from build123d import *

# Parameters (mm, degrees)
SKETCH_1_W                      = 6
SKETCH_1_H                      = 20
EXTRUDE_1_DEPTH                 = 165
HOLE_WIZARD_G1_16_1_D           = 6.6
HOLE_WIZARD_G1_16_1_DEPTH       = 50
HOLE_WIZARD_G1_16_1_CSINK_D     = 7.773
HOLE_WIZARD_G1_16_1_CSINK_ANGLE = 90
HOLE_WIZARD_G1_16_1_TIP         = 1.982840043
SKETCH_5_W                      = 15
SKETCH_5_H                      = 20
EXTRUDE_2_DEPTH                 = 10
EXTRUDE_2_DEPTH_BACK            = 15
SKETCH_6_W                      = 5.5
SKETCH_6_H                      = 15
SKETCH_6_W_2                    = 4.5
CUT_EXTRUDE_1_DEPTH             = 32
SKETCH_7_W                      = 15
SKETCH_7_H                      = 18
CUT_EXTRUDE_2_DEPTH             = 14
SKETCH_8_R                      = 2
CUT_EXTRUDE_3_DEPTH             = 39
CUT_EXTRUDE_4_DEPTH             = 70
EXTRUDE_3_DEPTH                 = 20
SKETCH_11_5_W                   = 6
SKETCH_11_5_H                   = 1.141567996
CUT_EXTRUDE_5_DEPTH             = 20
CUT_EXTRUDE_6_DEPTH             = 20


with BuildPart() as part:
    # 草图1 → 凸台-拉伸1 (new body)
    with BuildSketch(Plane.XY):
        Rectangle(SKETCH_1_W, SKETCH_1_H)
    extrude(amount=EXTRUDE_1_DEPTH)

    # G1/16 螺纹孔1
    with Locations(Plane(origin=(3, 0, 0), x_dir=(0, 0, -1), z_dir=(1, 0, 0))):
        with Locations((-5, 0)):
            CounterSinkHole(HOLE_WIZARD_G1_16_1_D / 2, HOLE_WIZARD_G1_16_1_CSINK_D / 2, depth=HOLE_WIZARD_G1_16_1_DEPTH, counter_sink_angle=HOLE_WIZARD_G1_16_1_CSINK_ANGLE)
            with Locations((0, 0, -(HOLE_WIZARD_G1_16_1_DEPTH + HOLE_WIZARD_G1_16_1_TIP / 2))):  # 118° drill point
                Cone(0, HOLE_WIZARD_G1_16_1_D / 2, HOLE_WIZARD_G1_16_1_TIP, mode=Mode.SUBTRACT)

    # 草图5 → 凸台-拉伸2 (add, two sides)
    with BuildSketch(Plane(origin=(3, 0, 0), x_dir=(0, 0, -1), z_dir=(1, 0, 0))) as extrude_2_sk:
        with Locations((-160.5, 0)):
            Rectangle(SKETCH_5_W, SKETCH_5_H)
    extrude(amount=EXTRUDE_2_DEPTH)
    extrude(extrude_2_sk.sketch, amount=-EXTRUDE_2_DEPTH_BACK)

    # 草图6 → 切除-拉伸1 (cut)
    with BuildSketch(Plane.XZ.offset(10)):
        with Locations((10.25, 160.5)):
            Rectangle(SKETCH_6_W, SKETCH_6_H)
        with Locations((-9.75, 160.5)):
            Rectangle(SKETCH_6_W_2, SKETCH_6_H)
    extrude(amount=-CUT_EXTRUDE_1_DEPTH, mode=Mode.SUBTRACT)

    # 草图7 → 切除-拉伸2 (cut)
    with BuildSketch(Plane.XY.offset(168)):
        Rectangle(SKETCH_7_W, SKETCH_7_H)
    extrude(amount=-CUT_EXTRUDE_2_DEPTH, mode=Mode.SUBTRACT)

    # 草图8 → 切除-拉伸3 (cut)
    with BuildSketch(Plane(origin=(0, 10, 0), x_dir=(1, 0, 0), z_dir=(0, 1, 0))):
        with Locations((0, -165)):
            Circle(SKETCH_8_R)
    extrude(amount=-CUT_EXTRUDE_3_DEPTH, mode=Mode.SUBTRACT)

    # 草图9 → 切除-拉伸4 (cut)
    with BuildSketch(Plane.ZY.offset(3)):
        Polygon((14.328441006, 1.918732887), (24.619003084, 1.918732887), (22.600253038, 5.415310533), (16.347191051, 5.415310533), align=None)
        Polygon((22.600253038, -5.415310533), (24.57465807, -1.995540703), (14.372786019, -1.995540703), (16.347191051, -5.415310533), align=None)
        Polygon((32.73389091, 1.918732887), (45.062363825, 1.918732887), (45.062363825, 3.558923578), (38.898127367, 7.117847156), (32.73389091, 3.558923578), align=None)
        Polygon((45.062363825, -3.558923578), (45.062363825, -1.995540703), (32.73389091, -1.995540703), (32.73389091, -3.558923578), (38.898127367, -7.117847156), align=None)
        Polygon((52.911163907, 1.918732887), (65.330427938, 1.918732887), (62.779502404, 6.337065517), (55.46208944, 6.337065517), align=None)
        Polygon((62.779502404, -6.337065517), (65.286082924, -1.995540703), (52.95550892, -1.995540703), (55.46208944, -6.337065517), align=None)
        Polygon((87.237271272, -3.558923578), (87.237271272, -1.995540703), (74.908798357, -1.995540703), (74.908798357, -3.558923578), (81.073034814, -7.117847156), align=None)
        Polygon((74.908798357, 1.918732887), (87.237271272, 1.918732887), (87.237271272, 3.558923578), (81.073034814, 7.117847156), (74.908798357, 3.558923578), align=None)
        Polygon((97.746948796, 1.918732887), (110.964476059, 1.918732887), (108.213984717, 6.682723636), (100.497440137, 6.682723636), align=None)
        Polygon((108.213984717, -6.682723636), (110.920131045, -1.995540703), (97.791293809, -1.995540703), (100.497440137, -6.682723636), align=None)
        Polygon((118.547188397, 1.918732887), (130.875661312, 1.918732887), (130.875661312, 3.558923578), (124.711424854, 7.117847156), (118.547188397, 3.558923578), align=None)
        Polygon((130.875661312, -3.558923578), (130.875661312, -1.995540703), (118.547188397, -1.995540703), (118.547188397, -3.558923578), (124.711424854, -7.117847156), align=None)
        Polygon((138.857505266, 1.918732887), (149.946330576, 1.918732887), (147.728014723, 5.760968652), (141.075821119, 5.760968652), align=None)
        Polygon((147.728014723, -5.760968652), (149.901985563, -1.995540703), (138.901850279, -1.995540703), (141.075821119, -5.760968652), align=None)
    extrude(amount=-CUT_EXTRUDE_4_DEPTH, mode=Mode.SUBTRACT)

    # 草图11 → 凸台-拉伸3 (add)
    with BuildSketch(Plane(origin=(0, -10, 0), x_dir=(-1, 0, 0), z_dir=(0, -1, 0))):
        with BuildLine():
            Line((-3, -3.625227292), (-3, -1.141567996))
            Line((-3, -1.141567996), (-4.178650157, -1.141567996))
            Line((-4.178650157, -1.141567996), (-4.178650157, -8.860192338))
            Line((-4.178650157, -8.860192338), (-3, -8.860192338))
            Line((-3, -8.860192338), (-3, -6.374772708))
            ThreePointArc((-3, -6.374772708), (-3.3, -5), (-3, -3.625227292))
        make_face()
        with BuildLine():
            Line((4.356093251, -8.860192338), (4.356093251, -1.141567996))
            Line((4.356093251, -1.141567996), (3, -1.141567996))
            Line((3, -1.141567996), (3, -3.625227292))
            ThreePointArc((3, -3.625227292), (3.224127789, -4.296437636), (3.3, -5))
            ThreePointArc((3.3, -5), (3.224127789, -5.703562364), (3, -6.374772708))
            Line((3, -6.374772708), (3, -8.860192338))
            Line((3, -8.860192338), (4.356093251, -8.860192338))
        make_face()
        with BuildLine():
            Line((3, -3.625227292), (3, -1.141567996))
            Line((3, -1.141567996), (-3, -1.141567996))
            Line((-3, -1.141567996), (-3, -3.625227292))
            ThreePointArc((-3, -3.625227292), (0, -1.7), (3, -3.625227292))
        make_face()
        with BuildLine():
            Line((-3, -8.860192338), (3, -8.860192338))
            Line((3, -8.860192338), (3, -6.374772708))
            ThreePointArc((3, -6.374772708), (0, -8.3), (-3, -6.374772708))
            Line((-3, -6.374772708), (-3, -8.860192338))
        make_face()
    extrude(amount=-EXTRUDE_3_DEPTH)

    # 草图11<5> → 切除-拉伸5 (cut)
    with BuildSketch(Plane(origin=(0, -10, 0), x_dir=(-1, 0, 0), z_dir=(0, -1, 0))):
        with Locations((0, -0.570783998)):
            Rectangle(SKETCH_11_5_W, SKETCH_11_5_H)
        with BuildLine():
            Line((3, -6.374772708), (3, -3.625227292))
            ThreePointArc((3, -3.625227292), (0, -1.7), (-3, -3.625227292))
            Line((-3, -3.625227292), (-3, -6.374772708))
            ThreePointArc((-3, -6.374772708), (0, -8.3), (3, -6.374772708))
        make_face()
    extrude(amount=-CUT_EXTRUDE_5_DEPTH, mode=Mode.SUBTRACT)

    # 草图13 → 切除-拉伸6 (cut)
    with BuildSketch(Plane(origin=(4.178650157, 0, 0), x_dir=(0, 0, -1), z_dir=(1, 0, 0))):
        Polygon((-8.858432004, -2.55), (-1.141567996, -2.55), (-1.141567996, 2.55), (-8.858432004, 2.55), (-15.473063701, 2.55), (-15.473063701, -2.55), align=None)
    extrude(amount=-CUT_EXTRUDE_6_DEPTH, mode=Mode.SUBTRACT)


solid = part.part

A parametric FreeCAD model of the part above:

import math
import FreeCAD as App
import Part
import Sketcher
from FreeCAD import Vector
Q = App.Units.Quantity

doc = App.newDocument("Part")
body = doc.addObject("PartDesign::Body", "Body")

# Sketch on XY plane
sketch1 = body.newObject("Sketcher::SketchObject", "Sketch")
sketch1.AttachmentSupport = (doc.getObject("XY_Plane"), [""])
sketch1.MapMode = "FlatFace"
sketch1.addGeometry(Part.LineSegment(Vector(-3, 10, 0), Vector(-3, -10, 0)), False)
sketch1.addGeometry(Part.LineSegment(Vector(-3, -10, 0), Vector(3, -10, 0)), False)
sketch1.addGeometry(Part.LineSegment(Vector(3, -10, 0), Vector(3, 10, 0)), False)
sketch1.addGeometry(Part.LineSegment(Vector(3, 10, 0), Vector(-3, 10, 0)), False)
sketch1.addConstraint(Sketcher.Constraint("Coincident", 0, 2, 1, 1))
sketch1.addConstraint(Sketcher.Constraint("Coincident", 1, 2, 2, 1))
sketch1.addConstraint(Sketcher.Constraint("Coincident", 2, 2, 3, 1))
sketch1.addConstraint(Sketcher.Constraint("Coincident", 3, 2, 0, 1))
sketch1.addConstraint(Sketcher.Constraint("Vertical", 0))
sketch1.addConstraint(Sketcher.Constraint("Horizontal", 1))
sketch1.addConstraint(Sketcher.Constraint("Vertical", 2))
sketch1.addConstraint(Sketcher.Constraint("Horizontal", 3))
sketch1.addConstraint(Sketcher.Constraint("Symmetric", 0, 2, 2, 2, -1, 1))
sketch1.addConstraint(Sketcher.Constraint("DistanceX", 1, 1, 1, 2, 6.0))
sketch1.addConstraint(Sketcher.Constraint("DistanceY", 0, 2, 0, 1, 20.0))
pad1 = body.newObject("PartDesign::Pad", "Pad")
pad1.Profile = sketch1
pad1.Length = 165

# Sketch on YZ plane
sketch2 = body.newObject("Sketcher::SketchObject", "Sketch001")
sketch2.AttachmentSupport = (doc.getObject("YZ_Plane"), [""])
sketch2.MapMode = "FlatFace"
sketch2.AttachmentOffset = App.Placement(Vector(0, 0, 3), App.Rotation())
sketch2.addGeometry(Part.Circle(Vector(0, 5, 0), Vector(0, 0, 1), 3.3), False)
sketch2.addConstraint(Sketcher.Constraint("PointOnObject", 0, 3, -2))
sketch2.addConstraint(Sketcher.Constraint("Diameter", 0, 6.6))
sketch2.addConstraint(Sketcher.Constraint("DistanceY", -1, 1, 0, 3, 5.0))
doc.recompute()
hole = body.newObject("PartDesign::Hole", "Hole")
hole.Profile = sketch2
hole.ThreadType = "None"
hole.Diameter = 6.6
hole.DepthType = "Dimension"
hole.Depth = 50
hole.DrillPoint = "Angled"
hole.DrillPointAngle = 118
hole.HoleCutType = "Countersink"
hole.HoleCutDiameter = 7.773
hole.HoleCutCountersinkAngle = 90

# Sketch on YZ plane
sketch3 = body.newObject("Sketcher::SketchObject", "Sketch002")
sketch3.AttachmentSupport = (doc.getObject("YZ_Plane"), [""])
sketch3.MapMode = "FlatFace"
sketch3.AttachmentOffset = App.Placement(Vector(0, 0, 3), App.Rotation())
sketch3.addGeometry(Part.LineSegment(Vector(10, 168, 0), Vector(-10, 168, 0)), False)
sketch3.addGeometry(Part.LineSegment(Vector(-10, 168, 0), Vector(-10, 153, 0)), False)
sketch3.addGeometry(Part.LineSegment(Vector(-10, 153, 0), Vector(10, 153, 0)), False)
sketch3.addGeometry(Part.LineSegment(Vector(10, 153, 0), Vector(10, 168, 0)), False)
sketch3.addConstraint(Sketcher.Constraint("Coincident", 0, 2, 1, 1))
sketch3.addConstraint(Sketcher.Constraint("Coincident", 1, 2, 2, 1))
sketch3.addConstraint(Sketcher.Constraint("Coincident", 2, 2, 3, 1))
sketch3.addConstraint(Sketcher.Constraint("Coincident", 3, 2, 0, 1))
sketch3.addConstraint(Sketcher.Constraint("Horizontal", 0))
sketch3.addConstraint(Sketcher.Constraint("Vertical", 1))
sketch3.addConstraint(Sketcher.Constraint("Horizontal", 2))
sketch3.addConstraint(Sketcher.Constraint("Vertical", 3))
sketch3.addConstraint(Sketcher.Constraint("DistanceX", 0, 2, 0, 1, 20.0))
sketch3.addConstraint(Sketcher.Constraint("DistanceY", 1, 2, 1, 1, 15.0))
sketch3.addConstraint(Sketcher.Constraint("DistanceX", 0, 2, -1, 1, 10.0))
sketch3.addConstraint(Sketcher.Constraint("DistanceY", -1, 1, 0, 2, 168.0))
pad2 = body.newObject("PartDesign::Pad", "Pad001")
pad2.Profile = sketch3
pad2.Type = "TwoLengths"
pad2.Length = 10
pad2.Length2 = 15

# Sketch on XZ plane
sketch4 = body.newObject("Sketcher::SketchObject", "Sketch003")
sketch4.AttachmentSupport = (doc.getObject("XZ_Plane"), [""])
sketch4.MapMode = "FlatFace"
sketch4.AttachmentOffset = App.Placement(Vector(0, 0, 10), App.Rotation())
sketch4.addGeometry(Part.LineSegment(Vector(7.5, 168, 0), Vector(7.5, 153, 0)), False)
sketch4.addGeometry(Part.LineSegment(Vector(7.5, 153, 0), Vector(13, 153, 0)), False)
sketch4.addGeometry(Part.LineSegment(Vector(13, 153, 0), Vector(13, 168, 0)), False)
sketch4.addGeometry(Part.LineSegment(Vector(13, 168, 0), Vector(7.5, 168, 0)), False)
sketch4.addGeometry(Part.LineSegment(Vector(-12, 168, 0), Vector(-12, 153, 0)), False)
sketch4.addGeometry(Part.LineSegment(Vector(-12, 153, 0), Vector(-7.5, 153, 0)), False)
sketch4.addGeometry(Part.LineSegment(Vector(-7.5, 153, 0), Vector(-7.5, 168, 0)), False)
sketch4.addGeometry(Part.LineSegment(Vector(-7.5, 168, 0), Vector(-12, 168, 0)), False)
sketch4.addConstraint(Sketcher.Constraint("Coincident", 0, 2, 1, 1))
sketch4.addConstraint(Sketcher.Constraint("Coincident", 1, 2, 2, 1))
sketch4.addConstraint(Sketcher.Constraint("Coincident", 2, 2, 3, 1))
sketch4.addConstraint(Sketcher.Constraint("Coincident", 3, 2, 0, 1))
sketch4.addConstraint(Sketcher.Constraint("Coincident", 4, 2, 5, 1))
sketch4.addConstraint(Sketcher.Constraint("Coincident", 5, 2, 6, 1))
sketch4.addConstraint(Sketcher.Constraint("Coincident", 6, 2, 7, 1))
sketch4.addConstraint(Sketcher.Constraint("Coincident", 7, 2, 4, 1))
sketch4.addConstraint(Sketcher.Constraint("Vertical", 0))
sketch4.addConstraint(Sketcher.Constraint("Horizontal", 1))
sketch4.addConstraint(Sketcher.Constraint("Vertical", 2))
sketch4.addConstraint(Sketcher.Constraint("Horizontal", 3))
sketch4.addConstraint(Sketcher.Constraint("Vertical", 4))
sketch4.addConstraint(Sketcher.Constraint("Horizontal", 5))
sketch4.addConstraint(Sketcher.Constraint("Vertical", 6))
sketch4.addConstraint(Sketcher.Constraint("Horizontal", 7))
sketch4.addConstraint(Sketcher.Constraint("Symmetric", 0, 2, 5, 2, -2))
sketch4.addConstraint(Sketcher.Constraint("Horizontal", 3, 2, 6, 2))
sketch4.addConstraint(Sketcher.Constraint("DistanceY", 0, 2, 0, 1, 15.0))
sketch4.addConstraint(Sketcher.Constraint("DistanceX", 1, 1, 1, 2, 5.5))
sketch4.addConstraint(Sketcher.Constraint("DistanceX", 5, 1, 5, 2, 4.5))
sketch4.addConstraint(Sketcher.Constraint("DistanceY", -1, 1, 0, 2, 153.0))
sketch4.addConstraint(Sketcher.Constraint("DistanceX", -1, 1, 1, 2, 13.0))
pocket1 = body.newObject("PartDesign::Pocket", "Pocket")
pocket1.Profile = sketch4
pocket1.Length = 32

# Sketch on XY plane
sketch5 = body.newObject("Sketcher::SketchObject", "Sketch004")
sketch5.AttachmentSupport = (doc.getObject("XY_Plane"), [""])
sketch5.MapMode = "FlatFace"
sketch5.AttachmentOffset = App.Placement(Vector(0, 0, 168), App.Rotation())
sketch5.addGeometry(Part.LineSegment(Vector(-8, 9, 0), Vector(-8, -9, 0)), False)
sketch5.addGeometry(Part.LineSegment(Vector(-8, -9, 0), Vector(8, -9, 0)), False)
sketch5.addGeometry(Part.LineSegment(Vector(8, -9, 0), Vector(8, 9, 0)), False)
sketch5.addGeometry(Part.LineSegment(Vector(8, 9, 0), Vector(-8, 9, 0)), False)
sketch5.addConstraint(Sketcher.Constraint("Coincident", 0, 2, 1, 1))
sketch5.addConstraint(Sketcher.Constraint("Coincident", 1, 2, 2, 1))
sketch5.addConstraint(Sketcher.Constraint("Coincident", 2, 2, 3, 1))
sketch5.addConstraint(Sketcher.Constraint("Coincident", 3, 2, 0, 1))
sketch5.addConstraint(Sketcher.Constraint("Vertical", 0))
sketch5.addConstraint(Sketcher.Constraint("Horizontal", 1))
sketch5.addConstraint(Sketcher.Constraint("Vertical", 2))
sketch5.addConstraint(Sketcher.Constraint("Horizontal", 3))
sketch5.addConstraint(Sketcher.Constraint("Symmetric", 0, 2, 2, 2, -1, 1))
sketch5.addConstraint(Sketcher.Constraint("DistanceX", 1, 1, 1, 2, 15.0))
sketch5.addConstraint(Sketcher.Constraint("DistanceY", 0, 2, 0, 1, 18.0))
pocket2 = body.newObject("PartDesign::Pocket", "Pocket001")
pocket2.Profile = sketch5
pocket2.Length = 14

# Sketch on XZ plane
sketch6 = body.newObject("Sketcher::SketchObject", "Sketch005")
sketch6.AttachmentSupport = (doc.getObject("XZ_Plane"), [""])
sketch6.MapMode = "FlatFace"
sketch6.AttachmentOffset = App.Placement(Vector(0, 0, -10), App.Rotation())
sketch6.addGeometry(Part.Circle(Vector(0, 165, 0), Vector(0, 0, 1), 2), False)
sketch6.addConstraint(Sketcher.Constraint("PointOnObject", 0, 3, -2))
sketch6.addConstraint(Sketcher.Constraint("Diameter", 0, 4.0))
sketch6.addConstraint(Sketcher.Constraint("DistanceY", -1, 1, 0, 3, 165.0))
pocket3 = body.newObject("PartDesign::Pocket", "Pocket002")
pocket3.Profile = sketch6
pocket3.Length = 39
pocket3.Reversed = True

# Sketch on YZ plane
sketch7 = body.newObject("Sketcher::SketchObject", "Sketch006")
sketch7.AttachmentSupport = (doc.getObject("YZ_Plane"), [""])
sketch7.MapMode = "FlatFace"
sketch7.AttachmentOffset = App.Placement(Vector(0, 0, -3), App.Rotation())
sketch7.addGeometry(Part.LineSegment(Vector(1.9, 14.3, 0), Vector(1.9, 24.6, 0)), False)
sketch7.addGeometry(Part.LineSegment(Vector(1.9, 24.6, 0), Vector(5.4, 22.6, 0)), False)
sketch7.addGeometry(Part.LineSegment(Vector(5.4, 22.6, 0), Vector(5.4, 16.3, 0)), False)
sketch7.addGeometry(Part.LineSegment(Vector(5.4, 16.3, 0), Vector(1.9, 14.3, 0)), False)
sketch7.addGeometry(Part.LineSegment(Vector(-5.4, 22.6, 0), Vector(-2, 24.6, 0)), False)
sketch7.addGeometry(Part.LineSegment(Vector(-2, 24.6, 0), Vector(-2, 14.4, 0)), False)
sketch7.addGeometry(Part.LineSegment(Vector(-2, 14.4, 0), Vector(-5.4, 16.3, 0)), False)
sketch7.addGeometry(Part.LineSegment(Vector(-5.4, 16.3, 0), Vector(-5.4, 22.6, 0)), False)
sketch7.addGeometry(Part.LineSegment(Vector(1.9, 32.7, 0), Vector(1.9, 45.1, 0)), False)
sketch7.addGeometry(Part.LineSegment(Vector(1.9, 45.1, 0), Vector(3.6, 45.1, 0)), False)
sketch7.addGeometry(Part.LineSegment(Vector(3.6, 45.1, 0), Vector(7.1, 38.9, 0)), False)
sketch7.addGeometry(Part.LineSegment(Vector(7.1, 38.9, 0), Vector(3.6, 32.7, 0)), False)
sketch7.addGeometry(Part.LineSegment(Vector(3.6, 32.7, 0), Vector(1.9, 32.7, 0)), False)
sketch7.addGeometry(Part.LineSegment(Vector(-3.6, 45.1, 0), Vector(-2, 45.1, 0)), False)
sketch7.addGeometry(Part.LineSegment(Vector(-2, 45.1, 0), Vector(-2, 32.7, 0)), False)
sketch7.addGeometry(Part.LineSegment(Vector(-2, 32.7, 0), Vector(-3.6, 32.7, 0)), False)
sketch7.addGeometry(Part.LineSegment(Vector(-3.6, 32.7, 0), Vector(-7.1, 38.9, 0)), False)
sketch7.addGeometry(Part.LineSegment(Vector(-7.1, 38.9, 0), Vector(-3.6, 45.1, 0)), False)
sketch7.addGeometry(Part.LineSegment(Vector(1.9, 52.9, 0), Vector(1.9, 65.3, 0)), False)
sketch7.addGeometry(Part.LineSegment(Vector(1.9, 65.3, 0), Vector(6.3, 62.8, 0)), False)
sketch7.addGeometry(Part.LineSegment(Vector(6.3, 62.8, 0), Vector(6.3, 55.5, 0)), False)
sketch7.addGeometry(Part.LineSegment(Vector(6.3, 55.5, 0), Vector(1.9, 52.9, 0)), False)
sketch7.addGeometry(Part.LineSegment(Vector(-6.3, 62.8, 0), Vector(-2, 65.3, 0)), False)
sketch7.addGeometry(Part.LineSegment(Vector(-2, 65.3, 0), Vector(-2, 53, 0)), False)
sketch7.addGeometry(Part.LineSegment(Vector(-2, 53, 0), Vector(-6.3, 55.5, 0)), False)
sketch7.addGeometry(Part.LineSegment(Vector(-6.3, 55.5, 0), Vector(-6.3, 62.8, 0)), False)
sketch7.addGeometry(Part.LineSegment(Vector(-3.6, 87.2, 0), Vector(-2, 87.2, 0)), False)
sketch7.addGeometry(Part.LineSegment(Vector(-2, 87.2, 0), Vector(-2, 74.9, 0)), False)
sketch7.addGeometry(Part.LineSegment(Vector(-2, 74.9, 0), Vector(-3.6, 74.9, 0)), False)
sketch7.addGeometry(Part.LineSegment(Vector(-3.6, 74.9, 0), Vector(-7.1, 81.1, 0)), False)
sketch7.addGeometry(Part.LineSegment(Vector(-7.1, 81.1, 0), Vector(-3.6, 87.2, 0)), False)
sketch7.addGeometry(Part.LineSegment(Vector(1.9, 74.9, 0), Vector(1.9, 87.2, 0)), False)
sketch7.addGeometry(Part.LineSegment(Vector(1.9, 87.2, 0), Vector(3.6, 87.2, 0)), False)
sketch7.addGeometry(Part.LineSegment(Vector(3.6, 87.2, 0), Vector(7.1, 81.1, 0)), False)
sketch7.addGeometry(Part.LineSegment(Vector(7.1, 81.1, 0), Vector(3.6, 74.9, 0)), False)
sketch7.addGeometry(Part.LineSegment(Vector(3.6, 74.9, 0), Vector(1.9, 74.9, 0)), False)
sketch7.addGeometry(Part.LineSegment(Vector(1.9, 97.7, 0), Vector(1.9, 111, 0)), False)
sketch7.addGeometry(Part.LineSegment(Vector(1.9, 111, 0), Vector(6.7, 108.2, 0)), False)
sketch7.addGeometry(Part.LineSegment(Vector(6.7, 108.2, 0), Vector(6.7, 100.5, 0)), False)
sketch7.addGeometry(Part.LineSegment(Vector(6.7, 100.5, 0), Vector(1.9, 97.7, 0)), False)
sketch7.addGeometry(Part.LineSegment(Vector(-6.7, 108.2, 0), Vector(-2, 110.9, 0)), False)
sketch7.addGeometry(Part.LineSegment(Vector(-2, 110.9, 0), Vector(-2, 97.8, 0)), False)
sketch7.addGeometry(Part.LineSegment(Vector(-2, 97.8, 0), Vector(-6.7, 100.5, 0)), False)
sketch7.addGeometry(Part.LineSegment(Vector(-6.7, 100.5, 0), Vector(-6.7, 108.2, 0)), False)
sketch7.addGeometry(Part.LineSegment(Vector(1.9, 118.5, 0), Vector(1.9, 130.9, 0)), False)
sketch7.addGeometry(Part.LineSegment(Vector(1.9, 130.9, 0), Vector(3.6, 130.9, 0)), False)
sketch7.addGeometry(Part.LineSegment(Vector(3.6, 130.9, 0), Vector(7.1, 124.7, 0)), False)
sketch7.addGeometry(Part.LineSegment(Vector(7.1, 124.7, 0), Vector(3.6, 118.5, 0)), False)
sketch7.addGeometry(Part.LineSegment(Vector(3.6, 118.5, 0), Vector(1.9, 118.5, 0)), False)
sketch7.addGeometry(Part.LineSegment(Vector(-3.6, 130.9, 0), Vector(-2, 130.9, 0)), False)
sketch7.addGeometry(Part.LineSegment(Vector(-2, 130.9, 0), Vector(-2, 118.5, 0)), False)
sketch7.addGeometry(Part.LineSegment(Vector(-2, 118.5, 0), Vector(-3.6, 118.5, 0)), False)
sketch7.addGeometry(Part.LineSegment(Vector(-3.6, 118.5, 0), Vector(-7.1, 124.7, 0)), False)
sketch7.addGeometry(Part.LineSegment(Vector(-7.1, 124.7, 0), Vector(-3.6, 130.9, 0)), False)
sketch7.addGeometry(Part.LineSegment(Vector(1.9, 138.9, 0), Vector(1.9, 149.9, 0)), False)
sketch7.addGeometry(Part.LineSegment(Vector(1.9, 149.9, 0), Vector(5.8, 147.7, 0)), False)
sketch7.addGeometry(Part.LineSegment(Vector(5.8, 147.7, 0), Vector(5.8, 141.1, 0)), False)
sketch7.addGeometry(Part.LineSegment(Vector(5.8, 141.1, 0), Vector(1.9, 138.9, 0)), False)
sketch7.addGeometry(Part.LineSegment(Vector(-5.8, 147.7, 0), Vector(-2, 149.9, 0)), False)
sketch7.addGeometry(Part.LineSegment(Vector(-2, 149.9, 0), Vector(-2, 138.9, 0)), False)
sketch7.addGeometry(Part.LineSegment(Vector(-2, 138.9, 0), Vector(-5.8, 141.1, 0)), False)
sketch7.addGeometry(Part.LineSegment(Vector(-5.8, 141.1, 0), Vector(-5.8, 147.7, 0)), False)
sketch7.addConstraint(Sketcher.Constraint("Coincident", 0, 2, 1, 1))
sketch7.addConstraint(Sketcher.Constraint("Coincident", 1, 2, 2, 1))
sketch7.addConstraint(Sketcher.Constraint("Coincident", 2, 2, 3, 1))
sketch7.addConstraint(Sketcher.Constraint("Coincident", 3, 2, 0, 1))
sketch7.addConstraint(Sketcher.Constraint("Coincident", 4, 2, 5, 1))
sketch7.addConstraint(Sketcher.Constraint("Coincident", 5, 2, 6, 1))
sketch7.addConstraint(Sketcher.Constraint("Coincident", 6, 2, 7, 1))
sketch7.addConstraint(Sketcher.Constraint("Coincident", 7, 2, 4, 1))
sketch7.addConstraint(Sketcher.Constraint("Coincident", 8, 2, 9, 1))
sketch7.addConstraint(Sketcher.Constraint("Coincident", 9, 2, 10, 1))
sketch7.addConstraint(Sketcher.Constraint("Coincident", 10, 2, 11, 1))
sketch7.addConstraint(Sketcher.Constraint("Coincident", 11, 2, 12, 1))
sketch7.addConstraint(Sketcher.Constraint("Coincident", 12, 2, 8, 1))
sketch7.addConstraint(Sketcher.Constraint("Coincident", 13, 2, 14, 1))
sketch7.addConstraint(Sketcher.Constraint("Coincident", 14, 2, 15, 1))
sketch7.addConstraint(Sketcher.Constraint("Coincident", 15, 2, 16, 1))
sketch7.addConstraint(Sketcher.Constraint("Coincident", 16, 2, 17, 1))
sketch7.addConstraint(Sketcher.Constraint("Coincident", 17, 2, 13, 1))
sketch7.addConstraint(Sketcher.Constraint("Coincident", 18, 2, 19, 1))
sketch7.addConstraint(Sketcher.Constraint("Coincident", 19, 2, 20, 1))
sketch7.addConstraint(Sketcher.Constraint("Coincident", 20, 2, 21, 1))
sketch7.addConstraint(Sketcher.Constraint("Coincident", 21, 2, 18, 1))
sketch7.addConstraint(Sketcher.Constraint("Coincident", 22, 2, 23, 1))
sketch7.addConstraint(Sketcher.Constraint("Coincident", 23, 2, 24, 1))
sketch7.addConstraint(Sketcher.Constraint("Coincident", 24, 2, 25, 1))
sketch7.addConstraint(Sketcher.Constraint("Coincident", 25, 2, 22, 1))
sketch7.addConstraint(Sketcher.Constraint("Coincident", 26, 2, 27, 1))
sketch7.addConstraint(Sketcher.Constraint("Coincident", 27, 2, 28, 1))
sketch7.addConstraint(Sketcher.Constraint("Coincident", 28, 2, 29, 1))
sketch7.addConstraint(Sketcher.Constraint("Coincident", 29, 2, 30, 1))
sketch7.addConstraint(Sketcher.Constraint("Coincident", 30, 2, 26, 1))
sketch7.addConstraint(Sketcher.Constraint("Coincident", 31, 2, 32, 1))
sketch7.addConstraint(Sketcher.Constraint("Coincident", 32, 2, 33, 1))
sketch7.addConstraint(Sketcher.Constraint("Coincident", 33, 2, 34, 1))
sketch7.addConstraint(Sketcher.Constraint("Coincident", 34, 2, 35, 1))
sketch7.addConstraint(Sketcher.Constraint("Coincident", 35, 2, 31, 1))
sketch7.addConstraint(Sketcher.Constraint("Coincident", 36, 2, 37, 1))
sketch7.addConstraint(Sketcher.Constraint("Coincident", 37, 2, 38, 1))
sketch7.addConstraint(Sketcher.Constraint("Coincident", 38, 2, 39, 1))
sketch7.addConstraint(Sketcher.Constraint("Coincident", 39, 2, 36, 1))
sketch7.addConstraint(Sketcher.Constraint("Coincident", 40, 2, 41, 1))
sketch7.addConstraint(Sketcher.Constraint("Coincident", 41, 2, 42, 1))
sketch7.addConstraint(Sketcher.Constraint("Coincident", 42, 2, 43, 1))
sketch7.addConstraint(Sketcher.Constraint("Coincident", 43, 2, 40, 1))
sketch7.addConstraint(Sketcher.Constraint("Coincident", 44, 2, 45, 1))
sketch7.addConstraint(Sketcher.Constraint("Coincident", 45, 2, 46, 1))
sketch7.addConstraint(Sketcher.Constraint("Coincident", 46, 2, 47, 1))
sketch7.addConstraint(Sketcher.Constraint("Coincident", 47, 2, 48, 1))
sketch7.addConstraint(Sketcher.Constraint("Coincident", 48, 2, 44, 1))
sketch7.addConstraint(Sketcher.Constraint("Coincident", 49, 2, 50, 1))
sketch7.addConstraint(Sketcher.Constraint("Coincident", 50, 2, 51, 1))
sketch7.addConstraint(Sketcher.Constraint("Coincident", 51, 2, 52, 1))
sketch7.addConstraint(Sketcher.Constraint("Coincident", 52, 2, 53, 1))
sketch7.addConstraint(Sketcher.Constraint("Coincident", 53, 2, 49, 1))
sketch7.addConstraint(Sketcher.Constraint("Coincident", 54, 2, 55, 1))
sketch7.addConstraint(Sketcher.Constraint("Coincident", 55, 2, 56, 1))
sketch7.addConstraint(Sketcher.Constraint("Coincident", 56, 2, 57, 1))
sketch7.addConstraint(Sketcher.Constraint("Coincident", 57, 2, 54, 1))
sketch7.addConstraint(Sketcher.Constraint("Coincident", 58, 2, 59, 1))
sketch7.addConstraint(Sketcher.Constraint("Coincident", 59, 2, 60, 1))
sketch7.addConstraint(Sketcher.Constraint("Coincident", 60, 2, 61, 1))
sketch7.addConstraint(Sketcher.Constraint("Coincident", 61, 2, 58, 1))
sketch7.addConstraint(Sketcher.Constraint("Vertical", 0))
sketch7.addConstraint(Sketcher.Constraint("Vertical", 2))
sketch7.addConstraint(Sketcher.Constraint("Vertical", 5))
sketch7.addConstraint(Sketcher.Constraint("Vertical", 7))
sketch7.addConstraint(Sketcher.Constraint("Vertical", 8))
sketch7.addConstraint(Sketcher.Constraint("Horizontal", 9))
sketch7.addConstraint(Sketcher.Constraint("Horizontal", 12))
sketch7.addConstraint(Sketcher.Constraint("Horizontal", 13))
sketch7.addConstraint(Sketcher.Constraint("Vertical", 14))
sketch7.addConstraint(Sketcher.Constraint("Horizontal", 15))
sketch7.addConstraint(Sketcher.Constraint("Vertical", 18))
sketch7.addConstraint(Sketcher.Constraint("Vertical", 20))
sketch7.addConstraint(Sketcher.Constraint("Vertical", 23))
sketch7.addConstraint(Sketcher.Constraint("Vertical", 25))
sketch7.addConstraint(Sketcher.Constraint("Horizontal", 26))
sketch7.addConstraint(Sketcher.Constraint("Vertical", 27))
sketch7.addConstraint(Sketcher.Constraint("Horizontal", 28))
sketch7.addConstraint(Sketcher.Constraint("Vertical", 31))
sketch7.addConstraint(Sketcher.Constraint("Horizontal", 32))
sketch7.addConstraint(Sketcher.Constraint("Horizontal", 35))
sketch7.addConstraint(Sketcher.Constraint("Vertical", 36))
sketch7.addConstraint(Sketcher.Constraint("Vertical", 38))
sketch7.addConstraint(Sketcher.Constraint("Vertical", 41))
sketch7.addConstraint(Sketcher.Constraint("Vertical", 43))
sketch7.addConstraint(Sketcher.Constraint("Vertical", 44))
sketch7.addConstraint(Sketcher.Constraint("Horizontal", 45))
sketch7.addConstraint(Sketcher.Constraint("Horizontal", 48))
sketch7.addConstraint(Sketcher.Constraint("Horizontal", 49))
sketch7.addConstraint(Sketcher.Constraint("Vertical", 50))
sketch7.addConstraint(Sketcher.Constraint("Horizontal", 51))
sketch7.addConstraint(Sketcher.Constraint("Vertical", 54))
sketch7.addConstraint(Sketcher.Constraint("Vertical", 56))
sketch7.addConstraint(Sketcher.Constraint("Vertical", 59))
sketch7.addConstraint(Sketcher.Constraint("Vertical", 61))
sketch7.addConstraint(Sketcher.Constraint("Symmetric", 2, 2, 6, 2, -2))
sketch7.addConstraint(Sketcher.Constraint("Symmetric", 11, 2, 15, 2, -2))
sketch7.addConstraint(Sketcher.Constraint("Symmetric", 10, 2, 16, 2, -2))
sketch7.addConstraint(Sketcher.Constraint("Symmetric", 9, 2, 17, 2, -2))
sketch7.addConstraint(Sketcher.Constraint("Symmetric", 20, 2, 24, 2, -2))
sketch7.addConstraint(Sketcher.Constraint("Symmetric", 30, 2, 32, 2, -2))
sketch7.addConstraint(Sketcher.Constraint("Symmetric", 29, 2, 33, 2, -2))
sketch7.addConstraint(Sketcher.Constraint("Symmetric", 28, 2, 34, 2, -2))
sketch7.addConstraint(Sketcher.Constraint("Symmetric", 38, 2, 42, 2, -2))
sketch7.addConstraint(Sketcher.Constraint("Symmetric", 47, 2, 51, 2, -2))
sketch7.addConstraint(Sketcher.Constraint("Symmetric", 46, 2, 52, 2, -2))
sketch7.addConstraint(Sketcher.Constraint("Symmetric", 45, 2, 53, 2, -2))
sketch7.addConstraint(Sketcher.Constraint("Symmetric", 56, 2, 60, 2, -2))
sketch7.addConstraint(Sketcher.Constraint("Parallel", 3, 4))
sketch7.addConstraint(Sketcher.Constraint("Parallel", 1, 6))
sketch7.addConstraint(Sketcher.Constraint("Perpendicular", 4, 10))
sketch7.addConstraint(Sketcher.Constraint("Perpendicular", 6, 11))
sketch7.addConstraint(Sketcher.Constraint("Parallel", 10, 16))
sketch7.addConstraint(Sketcher.Constraint("Perpendicular", 17, 19))
sketch7.addConstraint(Sketcher.Constraint("Perpendicular", 16, 21))
sketch7.addConstraint(Sketcher.Constraint("Parallel", 21, 22))
sketch7.addConstraint(Sketcher.Constraint("Parallel", 19, 24))
sketch7.addConstraint(Sketcher.Constraint("Perpendicular", 22, 29))
sketch7.addConstraint(Sketcher.Constraint("Perpendicular", 24, 30))
sketch7.addConstraint(Sketcher.Constraint("Perpendicular", 34, 37))
sketch7.addConstraint(Sketcher.Constraint("Perpendicular", 33, 39))
sketch7.addConstraint(Sketcher.Constraint("Parallel", 39, 40))
sketch7.addConstraint(Sketcher.Constraint("Parallel", 37, 42))
sketch7.addConstraint(Sketcher.Constraint("Perpendicular", 40, 46))
sketch7.addConstraint(Sketcher.Constraint("Perpendicular", 42, 47))
sketch7.addConstraint(Sketcher.Constraint("Perpendicular", 53, 55))
sketch7.addConstraint(Sketcher.Constraint("Perpendicular", 52, 57))
sketch7.addConstraint(Sketcher.Constraint("Parallel", 57, 58))
sketch7.addConstraint(Sketcher.Constraint("Parallel", 55, 60))
sketch7.addConstraint(Sketcher.Constraint("Horizontal", 1, 2, 7, 2))
sketch7.addConstraint(Sketcher.Constraint("Horizontal", 19, 2, 25, 2))
sketch7.addConstraint(Sketcher.Constraint("Horizontal", 37, 2, 43, 2))
sketch7.addConstraint(Sketcher.Constraint("Horizontal", 55, 2, 61, 2))
sketch7.addConstraint(Sketcher.Constraint("Vertical", 3, 2, 8, 2))
sketch7.addConstraint(Sketcher.Constraint("Vertical", 9, 2, 11, 2))
sketch7.addConstraint(Sketcher.Constraint("Vertical", 5, 2, 13, 2))
sketch7.addConstraint(Sketcher.Constraint("Vertical", 12, 2, 18, 2))
sketch7.addConstraint(Sketcher.Constraint("Vertical", 14, 2, 22, 2))
sketch7.addConstraint(Sketcher.Constraint("Vertical", 23, 2, 26, 2))
sketch7.addConstraint(Sketcher.Constraint("Vertical", 17, 2, 28, 2))
sketch7.addConstraint(Sketcher.Constraint("Vertical", 16, 2, 29, 2))
sketch7.addConstraint(Sketcher.Constraint("Vertical", 28, 2, 30, 2))
sketch7.addConstraint(Sketcher.Constraint("Vertical", 21, 2, 31, 2))
sketch7.addConstraint(Sketcher.Constraint("Vertical", 35, 2, 36, 2))
sketch7.addConstraint(Sketcher.Constraint("Vertical", 27, 2, 40, 2))
sketch7.addConstraint(Sketcher.Constraint("Vertical", 39, 2, 44, 2))
sketch7.addConstraint(Sketcher.Constraint("Vertical", 34, 2, 45, 2))
sketch7.addConstraint(Sketcher.Constraint("Vertical", 33, 2, 46, 2))
sketch7.addConstraint(Sketcher.Constraint("Vertical", 45, 2, 47, 2))
sketch7.addConstraint(Sketcher.Constraint("Vertical", 41, 2, 49, 2))
sketch7.addConstraint(Sketcher.Constraint("Vertical", 48, 2, 54, 2))
sketch7.addConstraint(Sketcher.Constraint("Vertical", 50, 2, 58, 2))
sketch7.addConstraint(Sketcher.Constraint("Angle", 1, Q("-30 deg")))
sketch7.addConstraint(Sketcher.Constraint("Distance", 1, 4.0375))
sketch7.addConstraint(Sketcher.Constraint("DistanceX", 9, 1, 9, 2, 1.640191))
sketch7.addConstraint(Sketcher.Constraint("DistanceY", 2, 2, 2, 1, 6.253062))
sketch7.addConstraint(Sketcher.Constraint("DistanceY", -1, 1, 27, 2, 74.908798))
sketch7.addConstraint(Sketcher.Constraint("Distance", 4, 3.94881))
sketch7.addConstraint(Sketcher.Constraint("Distance", 19, 5.101851))
sketch7.addConstraint(Sketcher.Constraint("Distance", 55, 4.436632))
sketch7.addConstraint(Sketcher.Constraint("DistanceY", 8, 1, 8, 2, 12.328473))
sketch7.addConstraint(Sketcher.Constraint("DistanceY", 18, 1, 18, 2, 12.419264))
sketch7.addConstraint(Sketcher.Constraint("DistanceY", 36, 1, 36, 2, 13.217527))
sketch7.addConstraint(Sketcher.Constraint("DistanceY", 38, 2, 38, 1, 7.716545))
sketch7.addConstraint(Sketcher.Constraint("DistanceY", 54, 1, 54, 2, 11.088825))
sketch7.addConstraint(Sketcher.Constraint("DistanceX", -1, 1, 1, 2, 5.415311))
sketch7.addConstraint(Sketcher.Constraint("DistanceY", -1, 1, 2, 2, 16.347191))
sketch7.addConstraint(Sketcher.Constraint("DistanceY", -1, 1, 11, 2, 32.733891))
sketch7.addConstraint(Sketcher.Constraint("DistanceY", -1, 1, 20, 2, 55.462089))
sketch7.addConstraint(Sketcher.Constraint("DistanceY", -1, 1, 38, 2, 100.49744))
sketch7.addConstraint(Sketcher.Constraint("DistanceY", -1, 1, 44, 2, 130.875661))
sketch7.addConstraint(Sketcher.Constraint("DistanceY", -1, 1, 54, 2, 149.946331))
pocket4 = body.newObject("PartDesign::Pocket", "Pocket003")
pocket4.Profile = sketch7
pocket4.Length = 70
pocket4.Reversed = True

# Sketch on XZ plane
sketch8 = body.newObject("Sketcher::SketchObject", "Sketch007")
sketch8.AttachmentSupport = (doc.getObject("XZ_Plane"), [""])
sketch8.MapMode = "FlatFace"
sketch8.AttachmentOffset = App.Placement(Vector(0, 0, 10), App.Rotation())
sketch8.addGeometry(Part.LineSegment(Vector(4.2, 1.1, 0), Vector(4.2, 8.9, 0)), False)
sketch8.addGeometry(Part.LineSegment(Vector(4.2, 8.9, 0), Vector(-4.4, 8.9, 0)), False)
sketch8.addGeometry(Part.LineSegment(Vector(-4.4, 8.9, 0), Vector(-4.4, 1.1, 0)), False)
sketch8.addGeometry(Part.LineSegment(Vector(-4.4, 1.1, 0), Vector(4.2, 1.1, 0)), False)
sketch8.addGeometry(Part.ArcOfCircle(Part.Circle(Vector(0, 5, 0), Vector(0, 0, 1), 3.3), math.radians(-25), math.radians(25)), False)
sketch8.addGeometry(Part.ArcOfCircle(Part.Circle(Vector(0, 5, 0), Vector(0, 0, 1), 3.3), math.radians(-155), math.radians(-25)), False)
sketch8.addGeometry(Part.ArcOfCircle(Part.Circle(Vector(0, 5, 0), Vector(0, 0, 1), 3.3), math.radians(180), math.radians(205)), False)
sketch8.addGeometry(Part.ArcOfCircle(Part.Circle(Vector(0, 5, 0), Vector(0, 0, 1), 3.3), math.radians(155), math.radians(180)), False)
sketch8.addGeometry(Part.ArcOfCircle(Part.Circle(Vector(0, 5, 0), Vector(0, 0, 1), 3.3), math.radians(25), math.radians(155)), False)
sketch8.addConstraint(Sketcher.Constraint("Coincident", 0, 2, 1, 1))
sketch8.addConstraint(Sketcher.Constraint("Coincident", 1, 2, 2, 1))
sketch8.addConstraint(Sketcher.Constraint("Coincident", 2, 2, 3, 1))
sketch8.addConstraint(Sketcher.Constraint("Coincident", 3, 2, 0, 1))
sketch8.addConstraint(Sketcher.Constraint("Tangent", 4, 1, 5, 2))
sketch8.addConstraint(Sketcher.Constraint("Tangent", 5, 1, 6, 2))
sketch8.addConstraint(Sketcher.Constraint("Tangent", 6, 1, 7, 2))
sketch8.addConstraint(Sketcher.Constraint("Tangent", 7, 1, 8, 2))
sketch8.addConstraint(Sketcher.Constraint("Tangent", 8, 1, 4, 2))
sketch8.addConstraint(Sketcher.Constraint("Vertical", 0))
sketch8.addConstraint(Sketcher.Constraint("Horizontal", 1))
sketch8.addConstraint(Sketcher.Constraint("Vertical", 2))
sketch8.addConstraint(Sketcher.Constraint("Horizontal", 3))
sketch8.addConstraint(Sketcher.Constraint("Coincident", 6, 3, 4, 3))
sketch8.addConstraint(Sketcher.Constraint("Symmetric", 4, 1, 5, 1, -2))
sketch8.addConstraint(Sketcher.Constraint("Horizontal", 8, 3, 6, 1))
sketch8.addConstraint(Sketcher.Constraint("Horizontal", 7, 1, 8, 1))
sketch8.addConstraint(Sketcher.Constraint("Vertical", 5, 1, 7, 1))
sketch8.addConstraint(Sketcher.Constraint("Radius", 4, 3.3))
sketch8.addConstraint(Sketcher.Constraint("DistanceY", -1, 1, 4, 3, 5.0))
sketch8.addConstraint(Sketcher.Constraint("DistanceX", -1, 1, 4, 1, 3.0))
sketch8.addConstraint(Sketcher.Constraint("DistanceX", 1, 2, 1, 1, 8.534743))
sketch8.addConstraint(Sketcher.Constraint("DistanceY", 0, 1, 0, 2, 7.718624))
sketch8.addConstraint(Sketcher.Constraint("DistanceX", -1, 1, 0, 2, 4.17865))
sketch8.addConstraint(Sketcher.Constraint("DistanceY", 3, 2, 4, 1, 2.483659))
pad3 = body.newObject("PartDesign::Pad", "Pad002")
pad3.Profile = sketch8
pad3.Length = 20
pad3.Reversed = True

# Sketch on XZ plane
sketch9 = body.newObject("Sketcher::SketchObject", "Sketch008")
sketch9.AttachmentSupport = (doc.getObject("XZ_Plane"), [""])
sketch9.MapMode = "FlatFace"
sketch9.AttachmentOffset = App.Placement(Vector(0, 0, 10), App.Rotation())
sketch9.addGeometry(Part.LineSegment(Vector(3, 0, 0), Vector(3, 1.1, 0)), False)
sketch9.addGeometry(Part.LineSegment(Vector(3, 1.1, 0), Vector(-3, 1.1, 0)), False)
sketch9.addGeometry(Part.LineSegment(Vector(-3, 1.1, 0), Vector(-3, 0, 0)), False)
sketch9.addGeometry(Part.LineSegment(Vector(-3, 0, 0), Vector(3, 0, 0)), False)
sketch9.addGeometry(Part.LineSegment(Vector(-3, 6.4, 0), Vector(-3, 3.6, 0)), False)
sketch9.addGeometry(Part.ArcOfCircle(Part.Circle(Vector(0, 5, 0), Vector(0, 0, 1), 3.3), math.radians(-155), math.radians(-25)), False)
sketch9.addGeometry(Part.LineSegment(Vector(3, 3.6, 0), Vector(3, 6.4, 0)), False)
sketch9.addGeometry(Part.ArcOfCircle(Part.Circle(Vector(0, 5, 0), Vector(0, 0, 1), 3.3), math.radians(25), math.radians(155)), False)
sketch9.addConstraint(Sketcher.Constraint("Coincident", 0, 2, 1, 1))
sketch9.addConstraint(Sketcher.Constraint("Coincident", 1, 2, 2, 1))
sketch9.addConstraint(Sketcher.Constraint("Coincident", 2, 2, 3, 1))
sketch9.addConstraint(Sketcher.Constraint("Coincident", 3, 2, 0, 1))
sketch9.addConstraint(Sketcher.Constraint("Coincident", 4, 2, 5, 1))
sketch9.addConstraint(Sketcher.Constraint("Coincident", 5, 2, 6, 1))
sketch9.addConstraint(Sketcher.Constraint("Coincident", 6, 2, 7, 1))
sketch9.addConstraint(Sketcher.Constraint("Coincident", 7, 2, 4, 1))
sketch9.addConstraint(Sketcher.Constraint("Vertical", 0))
sketch9.addConstraint(Sketcher.Constraint("Horizontal", 1))
sketch9.addConstraint(Sketcher.Constraint("Vertical", 2))
sketch9.addConstraint(Sketcher.Constraint("Horizontal", 3))
sketch9.addConstraint(Sketcher.Constraint("Vertical", 4))
sketch9.addConstraint(Sketcher.Constraint("Vertical", 6))
sketch9.addConstraint(Sketcher.Constraint("Coincident", 7, 3, 5, 3))
sketch9.addConstraint(Sketcher.Constraint("Equal", 5, 7))
sketch9.addConstraint(Sketcher.Constraint("Symmetric", 2, 2, 3, 2, -1, 1))
sketch9.addConstraint(Sketcher.Constraint("Symmetric", 4, 2, 5, 2, -2))
sketch9.addConstraint(Sketcher.Constraint("Vertical", 2, 2, 4, 2))
sketch9.addConstraint(Sketcher.Constraint("Radius", 5, 3.3))
sketch9.addConstraint(Sketcher.Constraint("DistanceX", 1, 2, 1, 1, 6.0))
sketch9.addConstraint(Sketcher.Constraint("DistanceY", -1, 1, 5, 3, 5.0))
sketch9.addConstraint(Sketcher.Constraint("DistanceY", 0, 1, 0, 2, 1.141568))
pocket5 = body.newObject("PartDesign::Pocket", "Pocket004")
pocket5.Profile = sketch9
pocket5.Length = 20

# Sketch on YZ plane
sketch10 = body.newObject("Sketcher::SketchObject", "Sketch009")
sketch10.AttachmentSupport = (doc.getObject("YZ_Plane"), [""])
sketch10.MapMode = "FlatFace"
sketch10.AttachmentOffset = App.Placement(Vector(0, 0, 4.17865), App.Rotation())
sketch10.addGeometry(Part.LineSegment(Vector(-3, 1, 0), Vector(3, 1, 0)), False)
sketch10.addGeometry(Part.LineSegment(Vector(3, 1, 0), Vector(3, 15, 0)), False)
sketch10.addGeometry(Part.LineSegment(Vector(3, 15, 0), Vector(-3, 15, 0)), False)
sketch10.addGeometry(Part.LineSegment(Vector(-3, 15, 0), Vector(-3, 1, 0)), False)
sketch10.addConstraint(Sketcher.Constraint("Coincident", 0, 2, 1, 1))
sketch10.addConstraint(Sketcher.Constraint("Coincident", 1, 2, 2, 1))
sketch10.addConstraint(Sketcher.Constraint("Coincident", 2, 2, 3, 1))
sketch10.addConstraint(Sketcher.Constraint("Coincident", 3, 2, 0, 1))
sketch10.addConstraint(Sketcher.Constraint("Horizontal", 0))
sketch10.addConstraint(Sketcher.Constraint("Vertical", 1))
sketch10.addConstraint(Sketcher.Constraint("Horizontal", 2))
sketch10.addConstraint(Sketcher.Constraint("Vertical", 3))
sketch10.addConstraint(Sketcher.Constraint("DistanceX", 0, 1, 0, 2, 5.1))
sketch10.addConstraint(Sketcher.Constraint("DistanceX", -1, 1, 0, 2, 2.55))
sketch10.addConstraint(Sketcher.Constraint("DistanceY", 1, 1, 1, 2, 14.331496))
sketch10.addConstraint(Sketcher.Constraint("DistanceY", -1, 1, 0, 2, 1.141568))
pocket6 = body.newObject("PartDesign::Pocket", "Pocket005")
pocket6.Profile = sketch10
pocket6.Length = 20

doc.recompute()
